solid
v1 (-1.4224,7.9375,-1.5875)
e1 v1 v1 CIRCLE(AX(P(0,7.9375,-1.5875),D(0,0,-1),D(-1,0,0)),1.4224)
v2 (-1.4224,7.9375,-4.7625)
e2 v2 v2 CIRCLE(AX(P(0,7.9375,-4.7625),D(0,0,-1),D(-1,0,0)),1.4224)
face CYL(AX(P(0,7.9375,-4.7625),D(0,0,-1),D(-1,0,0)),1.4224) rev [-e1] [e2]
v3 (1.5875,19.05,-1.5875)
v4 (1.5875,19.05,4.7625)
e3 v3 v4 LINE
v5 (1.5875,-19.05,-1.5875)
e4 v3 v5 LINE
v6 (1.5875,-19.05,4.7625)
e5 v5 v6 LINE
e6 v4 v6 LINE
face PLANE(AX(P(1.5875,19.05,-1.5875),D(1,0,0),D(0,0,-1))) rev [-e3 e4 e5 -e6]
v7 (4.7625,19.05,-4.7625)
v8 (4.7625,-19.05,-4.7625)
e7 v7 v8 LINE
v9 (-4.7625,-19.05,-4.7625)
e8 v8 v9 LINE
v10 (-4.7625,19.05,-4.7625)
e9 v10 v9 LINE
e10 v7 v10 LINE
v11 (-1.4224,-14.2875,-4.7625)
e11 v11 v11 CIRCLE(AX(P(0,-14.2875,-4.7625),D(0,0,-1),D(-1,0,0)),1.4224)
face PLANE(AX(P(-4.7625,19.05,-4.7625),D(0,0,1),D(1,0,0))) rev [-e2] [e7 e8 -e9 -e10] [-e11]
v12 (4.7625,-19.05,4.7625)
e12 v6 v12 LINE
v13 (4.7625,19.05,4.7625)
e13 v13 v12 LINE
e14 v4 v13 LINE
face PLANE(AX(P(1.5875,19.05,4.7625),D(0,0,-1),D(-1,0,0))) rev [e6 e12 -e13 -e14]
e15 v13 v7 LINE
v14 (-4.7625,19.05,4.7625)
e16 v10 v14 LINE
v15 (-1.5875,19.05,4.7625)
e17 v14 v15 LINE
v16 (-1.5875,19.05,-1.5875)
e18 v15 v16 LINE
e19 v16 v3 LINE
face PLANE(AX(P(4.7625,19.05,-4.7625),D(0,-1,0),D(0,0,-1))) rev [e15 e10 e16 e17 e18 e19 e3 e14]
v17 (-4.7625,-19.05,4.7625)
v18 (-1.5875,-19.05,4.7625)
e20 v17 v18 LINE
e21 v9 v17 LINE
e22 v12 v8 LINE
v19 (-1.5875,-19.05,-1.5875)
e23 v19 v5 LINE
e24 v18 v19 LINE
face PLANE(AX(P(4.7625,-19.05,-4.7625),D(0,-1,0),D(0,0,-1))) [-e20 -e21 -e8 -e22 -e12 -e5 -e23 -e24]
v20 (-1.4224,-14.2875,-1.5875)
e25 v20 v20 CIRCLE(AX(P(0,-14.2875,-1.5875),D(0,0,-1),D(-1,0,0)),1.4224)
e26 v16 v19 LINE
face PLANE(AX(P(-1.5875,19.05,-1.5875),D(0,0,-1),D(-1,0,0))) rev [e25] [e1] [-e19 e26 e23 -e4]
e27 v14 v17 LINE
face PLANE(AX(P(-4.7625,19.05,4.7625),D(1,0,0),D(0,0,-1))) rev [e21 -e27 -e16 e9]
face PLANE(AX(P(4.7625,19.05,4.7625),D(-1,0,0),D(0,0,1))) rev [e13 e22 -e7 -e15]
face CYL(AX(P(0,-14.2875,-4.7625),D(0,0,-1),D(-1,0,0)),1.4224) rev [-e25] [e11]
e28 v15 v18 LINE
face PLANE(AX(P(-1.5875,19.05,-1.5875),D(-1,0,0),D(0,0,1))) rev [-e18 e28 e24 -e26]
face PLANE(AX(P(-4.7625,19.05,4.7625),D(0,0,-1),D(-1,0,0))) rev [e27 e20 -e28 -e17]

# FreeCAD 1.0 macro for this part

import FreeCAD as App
import Part
import Sketcher
Q = App.Units.Quantity


def add_polygon(sketch, points):
    """Adds a closed chain of lines whose ends are joined by coincident constraints."""
    first, n = sketch.GeometryCount, len(points)
    for a, b in zip(points, points[1:] + points[:1]):
        sketch.addGeometry(Part.LineSegment(App.Vector(*a, 0), App.Vector(*b, 0)), False)
    for i in range(n):
        sketch.addConstraint(Sketcher.Constraint("Coincident", first + i, 2, first + (i + 1) % n, 1))

doc = App.newDocument("Part")
body = doc.addObject("PartDesign::Body", "Body")

sketch1 = body.newObject("Sketcher::SketchObject", "Sketch")
sketch1.AttachmentSupport = (doc.getObject("XZ_Plane"), [""])
sketch1.MapMode = "FlatFace"
add_polygon(sketch1, [(-4.8, 4.8), (-1.6, 4.8), (-1.6, -1.6), (1.6, -1.6), (1.6, 4.8), (4.8, 4.8), (4.8, -4.8), (-4.8, -4.8)])
sketch1.addConstraint([
    Sketcher.Constraint("Horizontal", 0),
    Sketcher.Constraint("Vertical", 1),
    Sketcher.Constraint("Horizontal", 2),
    Sketcher.Constraint("Vertical", 3),
    Sketcher.Constraint("Horizontal", 4),
    Sketcher.Constraint("Vertical", 5),
    Sketcher.Constraint("Horizontal", 6),
    Sketcher.Constraint("Vertical", 7),
    Sketcher.Constraint("Symmetric", 4, 2, 6, 2, -1, 1),
    Sketcher.Constraint("Symmetric", 0, 2, 3, 2, -2),
    Sketcher.Constraint("Equal", 0, 2),
    Sketcher.Constraint("Equal", 6, 5),
    Sketcher.Constraint("DistanceY", 1, 2, 1, 1, Q("0.25 in")),
    Sketcher.Constraint("DistanceX", 0, 1, 0, 2, Q("0.125 in")),
])
pad1 = body.newObject("PartDesign::Pad", "Pad")
pad1.Profile = sketch1
pad1.Length = Q("1.5 in")
pad1.Midplane = True

sketch2 = body.newObject("Sketcher::SketchObject", "Sketch001")
sketch2.AttachmentSupport = (doc.getObject("XY_Plane"), [""])
sketch2.MapMode = "FlatFace"
sketch2.AttachmentOffset = App.Placement(App.Vector(0, 0, -0.1875 * 25.4), App.Rotation())
sketch2.addGeometry([
    Part.Circle(App.Vector(0, 7.9, 0), App.Vector(0, 0, 1), 1.1),
    Part.Circle(App.Vector(0, -14.3, 0), App.Vector(0, 0, 1), 1.1),
], False)
sketch2.addConstraint([
    Sketcher.Constraint("Equal", 0, 1),
    Sketcher.Constraint("PointOnObject", 0, 3, -2),
    Sketcher.Constraint("PointOnObject", 1, 3, -2),
    Sketcher.Constraint("Diameter", 0, Q("0.089 in")),
    Sketcher.Constraint("DistanceY", -1, 1, 0, 3, Q("0.3125 in")),
    Sketcher.Constraint("DistanceY", 1, 3, -1, 1, Q("0.5625 in")),
])
doc.recompute()
hole = body.newObject("PartDesign::Hole", "Hole")
hole.Profile = sketch2
hole.ThreadType = "None"
hole.Diameter = Q("0.089 in")
hole.DepthType = "Dimension"
hole.Depth = Q("0.35 in")
hole.DrillPoint = "Angled"
hole.DrillPointAngle = 118
hole.HoleCutType = "Counterbore"
hole.HoleCutDiameter = Q("0.112 in")
hole.HoleCutDepth = Q("0.22 in")
hole.Reversed = True

doc.recompute()
